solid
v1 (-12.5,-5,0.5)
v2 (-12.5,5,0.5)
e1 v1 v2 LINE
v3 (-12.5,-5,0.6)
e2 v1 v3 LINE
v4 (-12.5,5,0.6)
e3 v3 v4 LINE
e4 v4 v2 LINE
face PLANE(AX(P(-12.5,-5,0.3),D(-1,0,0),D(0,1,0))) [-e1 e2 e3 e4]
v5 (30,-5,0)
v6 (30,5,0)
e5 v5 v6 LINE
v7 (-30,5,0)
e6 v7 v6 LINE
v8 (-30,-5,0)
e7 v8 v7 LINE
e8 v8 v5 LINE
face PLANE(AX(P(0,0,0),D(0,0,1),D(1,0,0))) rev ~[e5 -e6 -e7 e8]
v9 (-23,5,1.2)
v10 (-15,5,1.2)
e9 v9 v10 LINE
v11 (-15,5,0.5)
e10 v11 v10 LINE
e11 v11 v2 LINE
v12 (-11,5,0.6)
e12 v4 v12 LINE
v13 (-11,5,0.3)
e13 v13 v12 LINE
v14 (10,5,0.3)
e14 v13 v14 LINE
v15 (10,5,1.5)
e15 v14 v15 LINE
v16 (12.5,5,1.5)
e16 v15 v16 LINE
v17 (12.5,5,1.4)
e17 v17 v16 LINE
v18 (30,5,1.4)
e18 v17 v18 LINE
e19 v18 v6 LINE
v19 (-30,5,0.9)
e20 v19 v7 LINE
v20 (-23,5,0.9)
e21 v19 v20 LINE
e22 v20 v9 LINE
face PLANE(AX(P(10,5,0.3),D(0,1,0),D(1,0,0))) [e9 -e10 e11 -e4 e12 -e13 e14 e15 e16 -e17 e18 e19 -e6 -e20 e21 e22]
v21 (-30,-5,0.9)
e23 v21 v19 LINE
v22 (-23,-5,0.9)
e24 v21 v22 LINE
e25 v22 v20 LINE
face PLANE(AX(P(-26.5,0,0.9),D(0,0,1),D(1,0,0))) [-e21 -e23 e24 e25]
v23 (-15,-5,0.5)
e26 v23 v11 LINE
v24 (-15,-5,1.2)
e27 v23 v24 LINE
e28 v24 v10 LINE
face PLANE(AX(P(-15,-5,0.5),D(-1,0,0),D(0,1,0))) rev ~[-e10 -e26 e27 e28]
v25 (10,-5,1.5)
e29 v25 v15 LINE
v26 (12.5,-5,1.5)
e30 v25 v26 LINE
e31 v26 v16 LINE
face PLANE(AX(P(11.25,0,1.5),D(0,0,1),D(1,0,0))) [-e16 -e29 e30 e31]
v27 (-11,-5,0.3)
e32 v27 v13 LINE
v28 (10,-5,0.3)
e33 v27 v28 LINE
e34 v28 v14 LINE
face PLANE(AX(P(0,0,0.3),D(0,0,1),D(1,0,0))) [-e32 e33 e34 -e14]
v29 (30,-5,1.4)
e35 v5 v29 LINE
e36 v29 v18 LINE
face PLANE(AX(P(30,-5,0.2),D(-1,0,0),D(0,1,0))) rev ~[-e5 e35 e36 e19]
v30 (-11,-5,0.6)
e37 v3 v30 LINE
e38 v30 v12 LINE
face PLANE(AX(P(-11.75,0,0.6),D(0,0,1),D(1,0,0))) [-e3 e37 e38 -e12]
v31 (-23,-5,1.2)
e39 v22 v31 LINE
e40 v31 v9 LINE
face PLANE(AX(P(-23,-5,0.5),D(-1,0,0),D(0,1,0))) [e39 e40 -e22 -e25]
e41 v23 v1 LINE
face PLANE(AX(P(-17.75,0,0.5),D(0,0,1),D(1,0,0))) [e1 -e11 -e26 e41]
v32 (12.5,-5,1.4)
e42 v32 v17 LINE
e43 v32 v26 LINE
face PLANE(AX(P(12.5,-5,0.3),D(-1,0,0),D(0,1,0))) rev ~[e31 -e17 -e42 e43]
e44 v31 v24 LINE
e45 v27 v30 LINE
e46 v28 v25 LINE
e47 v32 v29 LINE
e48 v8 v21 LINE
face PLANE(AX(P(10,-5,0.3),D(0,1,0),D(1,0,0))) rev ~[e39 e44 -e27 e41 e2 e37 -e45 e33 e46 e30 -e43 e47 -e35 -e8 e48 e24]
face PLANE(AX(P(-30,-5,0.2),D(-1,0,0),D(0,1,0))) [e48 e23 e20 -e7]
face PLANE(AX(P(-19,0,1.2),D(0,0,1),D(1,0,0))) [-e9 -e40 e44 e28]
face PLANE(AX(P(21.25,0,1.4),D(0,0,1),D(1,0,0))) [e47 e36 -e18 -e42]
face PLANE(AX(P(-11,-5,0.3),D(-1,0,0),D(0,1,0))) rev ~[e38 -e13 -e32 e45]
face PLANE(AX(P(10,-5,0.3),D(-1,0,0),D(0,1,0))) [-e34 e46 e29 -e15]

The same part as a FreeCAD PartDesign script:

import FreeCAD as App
import Part
import Sketcher
from FreeCAD import Vector
Q = App.Units.Quantity


def add_polygon(sketch, points):
    """Adds a closed chain of lines whose ends are joined by coincident constraints."""
    first, n = sketch.GeometryCount, len(points)
    for a, b in zip(points, points[1:] + points[:1]):
        sketch.addGeometry(Part.LineSegment(App.Vector(*a, 0), App.Vector(*b, 0)), False)
    for i in range(n):
        sketch.addConstraint(Sketcher.Constraint("Coincident", first + i, 2, first + (i + 1) % n, 1))

doc = App.newDocument("Part")
body = doc.addObject("PartDesign::Body", "Body")

sketch1 = body.newObject("Sketcher::SketchObject", "Sketch")
sketch1.AttachmentSupport = (doc.getObject("XY_Plane"), [""])
sketch1.MapMode = "FlatFace"
add_polygon(sketch1, [(-30, 5), (-30, -5), (30, -5), (30, 5)])
sketch1.addConstraint(Sketcher.Constraint("Vertical", 0))
sketch1.addConstraint(Sketcher.Constraint("Horizontal", 1))
sketch1.addConstraint(Sketcher.Constraint("Vertical", 2))
sketch1.addConstraint(Sketcher.Constraint("Horizontal", 3))
sketch1.addConstraint(Sketcher.Constraint("Symmetric", 0, 2, 2, 2, -1, 1))
sketch1.addConstraint(Sketcher.Constraint("DistanceX", 1, 1, 1, 2, Q("60 mm")))
sketch1.addConstraint(Sketcher.Constraint("DistanceY", 0, 2, 0, 1, Q("10 mm")))
pad1 = body.newObject("PartDesign::Pad", "Pad")
pad1.Profile = sketch1
pad1.Length = 0.2

sketch2 = body.newObject("Sketcher::SketchObject", "Sketch001")
sketch2.AttachmentSupport = (doc.getObject("XY_Plane"), [""])
sketch2.MapMode = "FlatFace"
sketch2.AttachmentOffset = App.Placement(Vector(0, 0, 0.2), App.Rotation())
add_polygon(sketch2, [(-12.5, 5), (-12.5, -5), (12.5, -5), (12.5, 5)])
sketch2.addConstraint(Sketcher.Constraint("Vertical", 0))
sketch2.addConstraint(Sketcher.Constraint("Horizontal", 1))
sketch2.addConstraint(Sketcher.Constraint("Vertical", 2))
sketch2.addConstraint(Sketcher.Constraint("Horizontal", 3))
sketch2.addConstraint(Sketcher.Constraint("Symmetric", 0, 2, 2, 2, -1, 1))
sketch2.addConstraint(Sketcher.Constraint("DistanceX", 1, 1, 1, 2, Q("25 mm")))
sketch2.addConstraint(Sketcher.Constraint("DistanceY", 0, 2, 0, 1, Q("10 mm")))
pad2 = body.newObject("PartDesign::Pad", "Pad001")
pad2.Profile = sketch2
pad2.Length = 0.1

sketch3 = body.newObject("Sketcher::SketchObject", "Sketch002")
sketch3.AttachmentSupport = (doc.getObject("XY_Plane"), [""])
sketch3.MapMode = "FlatFace"
sketch3.AttachmentOffset = App.Placement(Vector(0, 0, 0.3), App.Rotation())
add_polygon(sketch3, [(-12.5, 5), (-12.5, -5), (-11, -5), (-11, 5)])
sketch3.addConstraint(Sketcher.Constraint("Vertical", 0))
sketch3.addConstraint(Sketcher.Constraint("Horizontal", 1))
sketch3.addConstraint(Sketcher.Constraint("Vertical", 2))
sketch3.addConstraint(Sketcher.Constraint("Horizontal", 3))
sketch3.addConstraint(Sketcher.Constraint("DistanceY", 0, 2, 0, 1, Q("10 mm")))
sketch3.addConstraint(Sketcher.Constraint("DistanceX", 1, 1, 1, 2, Q("1.5 mm")))
sketch3.addConstraint(Sketcher.Constraint("DistanceY", 0, 2, -1, 1, Q("5 mm")))
sketch3.addConstraint(Sketcher.Constraint("DistanceX", 1, 2, -1, 1, Q("11 mm")))
pad3 = body.newObject("PartDesign::Pad", "Pad002")
pad3.Profile = sketch3
pad3.Length = 0.3

sketch4 = body.newObject("Sketcher::SketchObject", "Sketch003")
sketch4.AttachmentSupport = (doc.getObject("XY_Plane"), [""])
sketch4.MapMode = "FlatFace"
sketch4.AttachmentOffset = App.Placement(Vector(0, 0, 0.2), App.Rotation())
add_polygon(sketch4, [(-23, 5), (-23, -5), (-12.5, -5), (-12.5, 5)])
sketch4.addConstraint(Sketcher.Constraint("Vertical", 0))
sketch4.addConstraint(Sketcher.Constraint("Horizontal", 1))
sketch4.addConstraint(Sketcher.Constraint("Vertical", 2))
sketch4.addConstraint(Sketcher.Constraint("Horizontal", 3))
sketch4.addConstraint(Sketcher.Constraint("DistanceY", 0, 2, 0, 1, Q("10 mm")))
sketch4.addConstraint(Sketcher.Constraint("DistanceX", 1, 1, 1, 2, Q("10.5 mm")))
sketch4.addConstraint(Sketcher.Constraint("DistanceX", 0, 2, -1, 1, Q("23 mm")))
sketch4.addConstraint(Sketcher.Constraint("DistanceY", 0, 2, -1, 1, Q("5 mm")))
pad4 = body.newObject("PartDesign::Pad", "Pad003")
pad4.Profile = sketch4
pad4.Length = 0.3

sketch5 = body.newObject("Sketcher::SketchObject", "Sketch004")
sketch5.AttachmentSupport = (doc.getObject("XY_Plane"), [""])
sketch5.MapMode = "FlatFace"
sketch5.AttachmentOffset = App.Placement(Vector(0, 0, 0.2), App.Rotation())
add_polygon(sketch5, [(-30, 5), (-30, -5), (-23, -5), (-23, 5)])
sketch5.addConstraint(Sketcher.Constraint("Vertical", 0))
sketch5.addConstraint(Sketcher.Constraint("Horizontal", 1))
sketch5.addConstraint(Sketcher.Constraint("Vertical", 2))
sketch5.addConstraint(Sketcher.Constraint("Horizontal", 3))
sketch5.addConstraint(Sketcher.Constraint("DistanceX", 1, 1, 1, 2, Q("7 mm")))
sketch5.addConstraint(Sketcher.Constraint("DistanceY", 0, 2, 0, 1, Q("10 mm")))
sketch5.addConstraint(Sketcher.Constraint("DistanceX", 0, 2, -1, 1, Q("30 mm")))
sketch5.addConstraint(Sketcher.Constraint("DistanceY", 0, 2, -1, 1, Q("5 mm")))
pad5 = body.newObject("PartDesign::Pad", "Pad004")
pad5.Profile = sketch5
pad5.Length = 0.7

sketch6 = body.newObject("Sketcher::SketchObject", "Sketch005")
sketch6.AttachmentSupport = (doc.getObject("XY_Plane"), [""])
sketch6.MapMode = "FlatFace"
sketch6.AttachmentOffset = App.Placement(Vector(0, 0, 0.5), App.Rotation())
add_polygon(sketch6, [(-23, 5), (-23, -5), (-15, -5), (-15, 5)])
sketch6.addConstraint(Sketcher.Constraint("Vertical", 0))
sketch6.addConstraint(Sketcher.Constraint("Horizontal", 1))
sketch6.addConstraint(Sketcher.Constraint("Vertical", 2))
sketch6.addConstraint(Sketcher.Constraint("Horizontal", 3))
sketch6.addConstraint(Sketcher.Constraint("DistanceX", 1, 1, 1, 2, Q("8 mm")))
sketch6.addConstraint(Sketcher.Constraint("DistanceY", 0, 2, 0, 1, Q("10 mm")))
sketch6.addConstraint(Sketcher.Constraint("DistanceX", 0, 2, -1, 1, Q("23 mm")))
sketch6.addConstraint(Sketcher.Constraint("DistanceY", 0, 2, -1, 1, Q("5 mm")))
pad6 = body.newObject("PartDesign::Pad", "Pad005")
pad6.Profile = sketch6
pad6.Length = 0.7

sketch7 = body.newObject("Sketcher::SketchObject", "Sketch006")
sketch7.AttachmentSupport = (doc.getObject("XY_Plane"), [""])
sketch7.MapMode = "FlatFace"
sketch7.AttachmentOffset = App.Placement(Vector(0, 0, 0.2), App.Rotation())
add_polygon(sketch7, [(12.5, 5), (12.5, -5), (30, -5), (30, 5)])
sketch7.addConstraint(Sketcher.Constraint("Vertical", 0))
sketch7.addConstraint(Sketcher.Constraint("Horizontal", 1))
sketch7.addConstraint(Sketcher.Constraint("Vertical", 2))
sketch7.addConstraint(Sketcher.Constraint("Horizontal", 3))
sketch7.addConstraint(Sketcher.Constraint("DistanceY", 0, 2, 0, 1, Q("10 mm")))
sketch7.addConstraint(Sketcher.Constraint("DistanceX", 1, 1, 1, 2, Q("17.5 mm")))
sketch7.addConstraint(Sketcher.Constraint("DistanceY", 0, 2, -1, 1, Q("5 mm")))
sketch7.addConstraint(Sketcher.Constraint("DistanceX", -1, 1, 1, 2, Q("30 mm")))
pad7 = body.newObject("PartDesign::Pad", "Pad006")
pad7.Profile = sketch7
pad7.Length = 1.2

sketch8 = body.newObject("Sketcher::SketchObject", "Sketch007")
sketch8.AttachmentSupport = (doc.getObject("XY_Plane"), [""])
sketch8.MapMode = "FlatFace"
sketch8.AttachmentOffset = App.Placement(Vector(0, 0, 0.3), App.Rotation())
add_polygon(sketch8, [(10, 5), (10, -5), (12.5, -5), (12.5, 5)])
sketch8.addConstraint(Sketcher.Constraint("Vertical", 0))
sketch8.addConstraint(Sketcher.Constraint("Horizontal", 1))
sketch8.addConstraint(Sketcher.Constraint("Vertical", 2))
sketch8.addConstraint(Sketcher.Constraint("Horizontal", 3))
sketch8.addConstraint(Sketcher.Constraint("DistanceY", 0, 2, 0, 1, Q("10 mm")))
sketch8.addConstraint(Sketcher.Constraint("DistanceX", 1, 1, 1, 2, Q("2.5 mm")))
sketch8.addConstraint(Sketcher.Constraint("DistanceX", -1, 1, 0, 2, Q("10 mm")))
sketch8.addConstraint(Sketcher.Constraint("DistanceY", 0, 2, -1, 1, Q("5 mm")))
pad8 = body.newObject("PartDesign::Pad", "Pad007")
pad8.Profile = sketch8
pad8.Length = 1.2

doc.recompute()
